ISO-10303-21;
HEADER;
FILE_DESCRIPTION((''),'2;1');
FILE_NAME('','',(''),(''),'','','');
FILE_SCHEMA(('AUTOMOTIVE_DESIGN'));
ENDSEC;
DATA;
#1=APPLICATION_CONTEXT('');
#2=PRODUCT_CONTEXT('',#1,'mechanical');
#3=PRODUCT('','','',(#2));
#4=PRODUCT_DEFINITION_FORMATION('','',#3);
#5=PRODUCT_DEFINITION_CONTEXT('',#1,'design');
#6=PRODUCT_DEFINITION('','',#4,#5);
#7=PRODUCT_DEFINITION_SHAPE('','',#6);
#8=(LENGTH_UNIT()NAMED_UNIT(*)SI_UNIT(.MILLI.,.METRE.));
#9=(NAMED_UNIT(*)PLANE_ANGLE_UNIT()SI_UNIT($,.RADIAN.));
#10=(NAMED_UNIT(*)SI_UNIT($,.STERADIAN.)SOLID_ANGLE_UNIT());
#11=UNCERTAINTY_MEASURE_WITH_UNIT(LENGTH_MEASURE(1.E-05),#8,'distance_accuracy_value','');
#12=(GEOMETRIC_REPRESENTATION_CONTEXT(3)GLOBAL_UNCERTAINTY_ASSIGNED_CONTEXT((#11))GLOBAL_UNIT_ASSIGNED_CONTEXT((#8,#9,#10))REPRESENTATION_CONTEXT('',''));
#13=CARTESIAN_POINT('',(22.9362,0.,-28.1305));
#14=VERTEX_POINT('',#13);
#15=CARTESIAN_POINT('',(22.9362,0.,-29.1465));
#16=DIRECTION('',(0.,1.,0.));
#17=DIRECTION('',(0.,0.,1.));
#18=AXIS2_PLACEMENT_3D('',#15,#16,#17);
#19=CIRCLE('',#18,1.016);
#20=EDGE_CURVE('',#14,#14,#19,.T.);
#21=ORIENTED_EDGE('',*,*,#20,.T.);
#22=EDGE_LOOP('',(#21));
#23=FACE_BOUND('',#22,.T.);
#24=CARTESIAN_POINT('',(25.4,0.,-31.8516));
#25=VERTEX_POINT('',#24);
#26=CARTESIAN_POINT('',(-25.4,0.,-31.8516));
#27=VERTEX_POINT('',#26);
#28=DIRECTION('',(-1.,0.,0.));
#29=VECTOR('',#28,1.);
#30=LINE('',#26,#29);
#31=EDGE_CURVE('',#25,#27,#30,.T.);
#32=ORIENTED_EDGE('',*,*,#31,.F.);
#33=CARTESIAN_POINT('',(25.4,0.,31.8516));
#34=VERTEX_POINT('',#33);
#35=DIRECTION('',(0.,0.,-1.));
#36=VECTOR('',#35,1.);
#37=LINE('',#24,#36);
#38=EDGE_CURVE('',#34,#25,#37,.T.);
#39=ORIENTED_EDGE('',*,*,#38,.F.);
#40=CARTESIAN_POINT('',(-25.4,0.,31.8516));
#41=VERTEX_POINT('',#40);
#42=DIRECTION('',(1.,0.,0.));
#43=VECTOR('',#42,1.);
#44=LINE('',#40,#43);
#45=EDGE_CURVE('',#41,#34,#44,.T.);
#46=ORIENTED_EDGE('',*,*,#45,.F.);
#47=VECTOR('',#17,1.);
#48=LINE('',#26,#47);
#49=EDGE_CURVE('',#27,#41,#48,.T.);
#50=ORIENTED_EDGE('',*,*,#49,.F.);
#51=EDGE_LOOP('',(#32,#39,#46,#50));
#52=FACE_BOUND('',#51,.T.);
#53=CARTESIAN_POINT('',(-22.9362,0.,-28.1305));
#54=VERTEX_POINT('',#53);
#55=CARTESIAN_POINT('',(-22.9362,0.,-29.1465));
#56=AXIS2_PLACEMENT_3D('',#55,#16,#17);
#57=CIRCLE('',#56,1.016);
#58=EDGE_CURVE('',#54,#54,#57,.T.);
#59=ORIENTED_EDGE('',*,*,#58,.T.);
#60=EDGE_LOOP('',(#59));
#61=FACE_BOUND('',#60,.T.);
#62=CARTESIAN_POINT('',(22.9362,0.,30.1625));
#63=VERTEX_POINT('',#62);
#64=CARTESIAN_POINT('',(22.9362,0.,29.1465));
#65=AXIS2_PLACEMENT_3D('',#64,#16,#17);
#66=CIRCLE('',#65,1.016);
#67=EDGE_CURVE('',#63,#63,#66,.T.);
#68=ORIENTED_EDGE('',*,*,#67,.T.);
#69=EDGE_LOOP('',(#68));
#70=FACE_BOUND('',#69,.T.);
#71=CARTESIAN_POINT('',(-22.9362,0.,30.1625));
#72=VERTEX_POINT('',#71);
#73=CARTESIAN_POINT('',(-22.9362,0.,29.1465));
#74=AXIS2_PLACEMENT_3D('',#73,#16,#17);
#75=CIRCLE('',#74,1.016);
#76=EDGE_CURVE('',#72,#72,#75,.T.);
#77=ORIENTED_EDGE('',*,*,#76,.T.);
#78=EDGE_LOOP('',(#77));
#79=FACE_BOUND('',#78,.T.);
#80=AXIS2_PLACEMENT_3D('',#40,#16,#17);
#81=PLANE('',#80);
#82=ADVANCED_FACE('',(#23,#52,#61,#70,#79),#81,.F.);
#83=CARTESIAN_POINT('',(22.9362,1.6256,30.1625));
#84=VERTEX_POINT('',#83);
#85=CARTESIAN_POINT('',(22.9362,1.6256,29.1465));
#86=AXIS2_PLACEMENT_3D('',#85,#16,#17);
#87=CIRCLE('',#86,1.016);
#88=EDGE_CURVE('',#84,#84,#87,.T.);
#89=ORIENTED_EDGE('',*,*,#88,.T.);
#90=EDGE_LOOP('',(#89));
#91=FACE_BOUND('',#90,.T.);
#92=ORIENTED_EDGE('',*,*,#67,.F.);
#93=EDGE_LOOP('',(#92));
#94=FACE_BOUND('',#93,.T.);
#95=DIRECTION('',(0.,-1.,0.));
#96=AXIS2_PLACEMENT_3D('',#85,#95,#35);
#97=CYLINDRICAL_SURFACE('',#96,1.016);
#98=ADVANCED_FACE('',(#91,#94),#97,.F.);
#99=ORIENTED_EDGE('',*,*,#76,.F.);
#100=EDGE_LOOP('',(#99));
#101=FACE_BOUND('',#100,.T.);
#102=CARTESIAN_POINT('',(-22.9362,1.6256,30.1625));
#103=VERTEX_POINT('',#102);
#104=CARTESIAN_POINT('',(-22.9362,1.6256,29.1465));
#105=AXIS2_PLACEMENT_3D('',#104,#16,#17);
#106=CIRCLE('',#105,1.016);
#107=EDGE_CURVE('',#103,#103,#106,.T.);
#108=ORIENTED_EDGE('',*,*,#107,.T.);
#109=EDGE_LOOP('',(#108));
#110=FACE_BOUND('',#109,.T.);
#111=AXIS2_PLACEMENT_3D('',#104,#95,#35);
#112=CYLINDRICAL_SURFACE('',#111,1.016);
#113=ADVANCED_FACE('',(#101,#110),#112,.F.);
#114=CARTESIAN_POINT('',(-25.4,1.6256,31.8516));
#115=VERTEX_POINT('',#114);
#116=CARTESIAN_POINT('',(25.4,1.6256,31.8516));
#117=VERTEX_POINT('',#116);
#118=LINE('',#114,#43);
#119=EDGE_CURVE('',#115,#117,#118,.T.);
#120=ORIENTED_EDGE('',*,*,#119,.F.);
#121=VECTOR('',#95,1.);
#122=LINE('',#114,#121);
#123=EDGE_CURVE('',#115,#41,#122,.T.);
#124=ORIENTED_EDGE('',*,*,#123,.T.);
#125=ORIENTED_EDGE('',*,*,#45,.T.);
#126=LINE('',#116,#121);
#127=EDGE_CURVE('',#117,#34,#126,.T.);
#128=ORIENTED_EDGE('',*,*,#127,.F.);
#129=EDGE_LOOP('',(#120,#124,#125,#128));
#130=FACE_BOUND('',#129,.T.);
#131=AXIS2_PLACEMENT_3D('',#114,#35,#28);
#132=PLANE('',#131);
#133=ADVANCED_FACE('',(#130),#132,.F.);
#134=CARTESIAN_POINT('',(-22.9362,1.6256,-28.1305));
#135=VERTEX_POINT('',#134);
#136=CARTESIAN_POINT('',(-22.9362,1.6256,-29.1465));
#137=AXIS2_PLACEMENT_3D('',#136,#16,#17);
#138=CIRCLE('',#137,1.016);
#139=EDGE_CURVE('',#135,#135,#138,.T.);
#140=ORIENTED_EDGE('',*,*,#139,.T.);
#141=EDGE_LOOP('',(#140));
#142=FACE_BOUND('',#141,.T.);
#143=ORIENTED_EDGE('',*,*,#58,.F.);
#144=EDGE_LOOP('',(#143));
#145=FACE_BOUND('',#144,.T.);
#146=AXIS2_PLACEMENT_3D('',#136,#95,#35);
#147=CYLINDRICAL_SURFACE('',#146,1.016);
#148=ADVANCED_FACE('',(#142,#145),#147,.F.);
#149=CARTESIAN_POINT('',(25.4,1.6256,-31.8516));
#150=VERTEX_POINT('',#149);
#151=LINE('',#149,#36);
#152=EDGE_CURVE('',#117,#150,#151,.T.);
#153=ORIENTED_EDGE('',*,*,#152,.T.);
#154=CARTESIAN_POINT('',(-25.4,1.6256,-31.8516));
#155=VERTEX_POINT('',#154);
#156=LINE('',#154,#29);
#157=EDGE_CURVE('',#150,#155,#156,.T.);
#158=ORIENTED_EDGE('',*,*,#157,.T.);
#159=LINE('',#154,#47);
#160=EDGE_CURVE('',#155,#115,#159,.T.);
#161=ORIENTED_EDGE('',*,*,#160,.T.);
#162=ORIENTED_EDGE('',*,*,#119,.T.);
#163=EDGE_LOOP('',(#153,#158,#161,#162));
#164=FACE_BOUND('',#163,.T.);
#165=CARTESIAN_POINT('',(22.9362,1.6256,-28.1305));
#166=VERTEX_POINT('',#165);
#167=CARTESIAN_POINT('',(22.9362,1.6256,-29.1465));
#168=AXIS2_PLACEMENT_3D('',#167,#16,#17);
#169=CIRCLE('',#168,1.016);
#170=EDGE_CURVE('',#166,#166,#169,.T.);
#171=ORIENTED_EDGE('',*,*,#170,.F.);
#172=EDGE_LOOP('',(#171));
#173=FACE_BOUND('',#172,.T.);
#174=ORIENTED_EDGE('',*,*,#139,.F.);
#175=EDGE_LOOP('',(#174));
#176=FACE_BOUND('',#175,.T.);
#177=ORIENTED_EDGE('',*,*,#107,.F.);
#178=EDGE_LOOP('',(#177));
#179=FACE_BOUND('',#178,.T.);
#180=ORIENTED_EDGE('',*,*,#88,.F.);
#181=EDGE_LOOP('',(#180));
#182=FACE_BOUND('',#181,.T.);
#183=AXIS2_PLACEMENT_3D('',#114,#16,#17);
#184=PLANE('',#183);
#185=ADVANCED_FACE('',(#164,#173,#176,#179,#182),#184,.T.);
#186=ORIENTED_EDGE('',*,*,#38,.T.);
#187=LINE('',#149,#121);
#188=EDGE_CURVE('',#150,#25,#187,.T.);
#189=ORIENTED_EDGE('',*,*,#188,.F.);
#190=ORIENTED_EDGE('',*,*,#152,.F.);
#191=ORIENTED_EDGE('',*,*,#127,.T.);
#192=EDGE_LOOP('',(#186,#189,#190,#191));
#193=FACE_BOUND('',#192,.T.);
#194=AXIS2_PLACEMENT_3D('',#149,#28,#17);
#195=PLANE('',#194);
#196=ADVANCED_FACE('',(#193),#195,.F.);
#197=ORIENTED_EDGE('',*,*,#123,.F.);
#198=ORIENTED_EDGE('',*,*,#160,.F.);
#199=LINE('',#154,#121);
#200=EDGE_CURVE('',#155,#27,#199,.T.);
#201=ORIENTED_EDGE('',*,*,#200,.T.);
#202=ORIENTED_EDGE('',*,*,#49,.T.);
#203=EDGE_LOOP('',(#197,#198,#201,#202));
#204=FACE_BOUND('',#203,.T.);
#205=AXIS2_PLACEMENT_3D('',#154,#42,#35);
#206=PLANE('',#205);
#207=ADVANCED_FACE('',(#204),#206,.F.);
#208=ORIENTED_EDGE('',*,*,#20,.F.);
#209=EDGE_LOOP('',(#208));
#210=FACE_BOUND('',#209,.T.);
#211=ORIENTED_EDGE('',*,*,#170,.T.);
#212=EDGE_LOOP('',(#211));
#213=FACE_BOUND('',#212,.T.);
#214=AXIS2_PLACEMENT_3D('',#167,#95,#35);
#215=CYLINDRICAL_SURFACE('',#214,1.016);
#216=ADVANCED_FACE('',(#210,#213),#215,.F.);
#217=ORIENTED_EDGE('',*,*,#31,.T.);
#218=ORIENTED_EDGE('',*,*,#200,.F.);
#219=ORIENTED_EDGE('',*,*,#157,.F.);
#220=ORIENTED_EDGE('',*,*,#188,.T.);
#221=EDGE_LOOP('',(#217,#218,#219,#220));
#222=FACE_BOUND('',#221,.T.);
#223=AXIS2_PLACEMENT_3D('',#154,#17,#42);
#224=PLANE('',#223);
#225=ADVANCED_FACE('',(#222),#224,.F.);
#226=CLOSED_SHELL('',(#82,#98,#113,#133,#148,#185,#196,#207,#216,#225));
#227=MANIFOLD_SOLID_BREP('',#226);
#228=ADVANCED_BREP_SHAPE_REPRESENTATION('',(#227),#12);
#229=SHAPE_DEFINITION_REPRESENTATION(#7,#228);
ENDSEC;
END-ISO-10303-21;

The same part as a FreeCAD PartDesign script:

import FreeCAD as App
import Part
import Sketcher
Q = App.Units.Quantity

doc = App.newDocument("Part")
params = doc.addObject("Spreadsheet::Sheet", "Params")
for row, (alias, value) in enumerate([
    ("sketch1_diameter", "0.08 in"),
    ("sketch1_width", "2 in"),
    ("sketch1_height", "2.508 in"),
    ("pad1_length", "0.064 in"),
], start=1):
    params.set(f"A{row}", alias)
    params.set(f"B{row}", "=" + value)
    params.setAlias(f"B{row}", alias)

body = doc.addObject("PartDesign::Body", "Body")

# Sketch on XZ plane
sketch1 = doc.addObject("Sketcher::SketchObject", "Sketch")
body.addObject(sketch1)
sketch1.AttachmentSupport = (doc.XZ_Plane, [""])
sketch1.MapMode = "FlatFace"
sketch1.addGeometry([
    Part.LineSegment(App.Vector(-25.4, -31.9, 0), App.Vector(-25.4, 31.9, 0)),  # 0
    Part.LineSegment(App.Vector(-25.4, 31.9, 0), App.Vector(25.4, 31.9, 0)),  # 1
    Part.LineSegment(App.Vector(25.4, 31.9, 0), App.Vector(25.4, -31.9, 0)),  # 2
    Part.LineSegment(App.Vector(25.4, -31.9, 0), App.Vector(-25.4, -31.9, 0)),  # 3
    Part.Circle(App.Vector(-22.9, 29.1, 0), App.Vector(0, 0, 1), 1),  # 4
    Part.Circle(App.Vector(22.9, 29.1, 0), App.Vector(0, 0, 1), 1),  # 5
    Part.Circle(App.Vector(-22.9, -29.1, 0), App.Vector(0, 0, 1), 1),  # 6
    Part.Circle(App.Vector(22.9, -29.1, 0), App.Vector(0, 0, 1), 1),  # 7
], False)
sketch1.addConstraint([
    Sketcher.Constraint("Coincident", 0, 2, 1, 1),
    Sketcher.Constraint("Coincident", 1, 2, 2, 1),
    Sketcher.Constraint("Coincident", 2, 2, 3, 1),
    Sketcher.Constraint("Coincident", 3, 2, 0, 1),
    Sketcher.Constraint("Vertical", 0),
    Sketcher.Constraint("Horizontal", 1),
    Sketcher.Constraint("Vertical", 2),
    Sketcher.Constraint("Horizontal", 3),
    Sketcher.Constraint("Equal", 4, 5),
    Sketcher.Constraint("Equal", 5, 6),
    Sketcher.Constraint("Equal", 6, 7),
    Sketcher.Constraint("Symmetric", 5, 3, 6, 3, -1, 1),
    Sketcher.Constraint("Symmetric", 4, 3, 7, 3, -1, 1),
    Sketcher.Constraint("Symmetric", 0, 2, 2, 2, -1, 1),
    Sketcher.Constraint("Symmetric", 4, 3, 5, 3, -2),
    Sketcher.Constraint("Diameter", 4, Q("0.08 in")),
    Sketcher.Constraint("DistanceX", 1, 1, 1, 2, Q("2 in")),
    Sketcher.Constraint("DistanceY", 0, 1, 0, 2, Q("2.508 in")),
    Sketcher.Constraint("DistanceX", 4, 3, -1, 1, Q("0.903 in")),
    Sketcher.Constraint("DistanceY", 6, 3, 4, 3, Q("2.295 in")),
])
sketch1.setExpression("Constraints[15]", "Params.sketch1_diameter")
sketch1.setExpression("Constraints[16]", "Params.sketch1_width")
sketch1.setExpression("Constraints[17]", "Params.sketch1_height")
pad1 = doc.addObject("PartDesign::Pad", "Pad")
body.addObject(pad1)
pad1.Profile = sketch1
pad1.setExpression("Length", "Params.pad1_length")
pad1.Reversed = True

doc.recompute()
